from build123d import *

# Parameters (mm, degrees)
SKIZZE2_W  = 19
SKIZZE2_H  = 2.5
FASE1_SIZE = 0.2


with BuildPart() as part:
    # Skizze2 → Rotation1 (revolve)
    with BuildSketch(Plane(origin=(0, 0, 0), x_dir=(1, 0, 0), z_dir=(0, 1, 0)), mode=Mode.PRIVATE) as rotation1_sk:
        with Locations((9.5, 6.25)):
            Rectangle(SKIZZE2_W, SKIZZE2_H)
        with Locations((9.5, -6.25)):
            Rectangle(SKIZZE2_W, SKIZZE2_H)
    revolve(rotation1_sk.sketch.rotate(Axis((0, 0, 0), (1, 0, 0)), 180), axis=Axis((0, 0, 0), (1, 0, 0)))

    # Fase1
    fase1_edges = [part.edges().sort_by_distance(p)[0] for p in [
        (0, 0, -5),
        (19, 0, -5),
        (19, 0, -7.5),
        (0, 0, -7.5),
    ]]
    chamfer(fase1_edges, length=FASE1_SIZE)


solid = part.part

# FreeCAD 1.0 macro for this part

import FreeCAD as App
import Part
import Sketcher

V = App.Vector


def edges_at(feature, points):
    """Names of the edges that pass closest to the given points."""
    edges = feature.Shape.Edges
    near = lambda p: min(range(len(edges)), key=lambda i: edges[i].distToShape(Part.Vertex(*p))[0])
    return sorted({f"Edge{near(p) + 1}" for p in points})


def add_polygon(sketch, points):
    """Adds a closed chain of lines whose ends are joined by coincident constraints."""
    first, n = sketch.GeometryCount, len(points)
    for a, b in zip(points, points[1:] + points[:1]):
        sketch.addGeometry(Part.LineSegment(App.Vector(*a, 0), App.Vector(*b, 0)), False)
    for i in range(n):
        sketch.addConstraint(Sketcher.Constraint("Coincident", first + i, 2, first + (i + 1) % n, 1))

doc = App.newDocument("Part")
body = doc.addObject("PartDesign::Body", "Body")

# Sketch on XZ plane
sketch1 = body.newObject("Sketcher::SketchObject", "Sketch")
sketch1.AttachmentSupport = (doc.getObject("XZ_Plane"), [""])
sketch1.MapMode = "FlatFace"
add_polygon(sketch1, [(0, -7.5), (0, -5), (19, -5), (19, -7.5)])  # lines 0-3
add_polygon(sketch1, [(0, 5), (0, 7.5), (19, 7.5), (19, 5)])  # lines 4-7
sketch1.addConstraint([
    Sketcher.Constraint("Vertical", 0),
    Sketcher.Constraint("Horizontal", 1),
    Sketcher.Constraint("Vertical", 2),
    Sketcher.Constraint("Horizontal", 3),
    Sketcher.Constraint("Vertical", 4),
    Sketcher.Constraint("Horizontal", 5),
    Sketcher.Constraint("Vertical", 6),
    Sketcher.Constraint("Horizontal", 7),
    Sketcher.Constraint("Symmetric", 3, 2, 4, 2, -1, 1),
    Sketcher.Constraint("Symmetric", 1, 2, 6, 2, -1),
    Sketcher.Constraint("PointOnObject", 0, 2, -2),
    Sketcher.Constraint("DistanceX", 1, 1, 1, 2, 19.0),
    Sketcher.Constraint("DistanceY", 0, 1, 0, 2, 2.5),
    Sketcher.Constraint("DistanceY", 0, 2, -1, 1, 5.0),
])
revolution = body.newObject("PartDesign::Revolution", "Revolution")
revolution.Profile = sketch1
revolution.ReferenceAxis = (sketch1, ["H_Axis"])
revolution.Angle = 360
doc.recompute()

chamfer = body.newObject("PartDesign::Chamfer", "Chamfer")
chamfer.Base = (revolution, edges_at(revolution, [
    (0, 0, 5),
    (19, 0, 5),
    (19, 0, 7.5),
    (0, 0, 7.5),
]))
chamfer.Size = 0.2

doc.recompute()
